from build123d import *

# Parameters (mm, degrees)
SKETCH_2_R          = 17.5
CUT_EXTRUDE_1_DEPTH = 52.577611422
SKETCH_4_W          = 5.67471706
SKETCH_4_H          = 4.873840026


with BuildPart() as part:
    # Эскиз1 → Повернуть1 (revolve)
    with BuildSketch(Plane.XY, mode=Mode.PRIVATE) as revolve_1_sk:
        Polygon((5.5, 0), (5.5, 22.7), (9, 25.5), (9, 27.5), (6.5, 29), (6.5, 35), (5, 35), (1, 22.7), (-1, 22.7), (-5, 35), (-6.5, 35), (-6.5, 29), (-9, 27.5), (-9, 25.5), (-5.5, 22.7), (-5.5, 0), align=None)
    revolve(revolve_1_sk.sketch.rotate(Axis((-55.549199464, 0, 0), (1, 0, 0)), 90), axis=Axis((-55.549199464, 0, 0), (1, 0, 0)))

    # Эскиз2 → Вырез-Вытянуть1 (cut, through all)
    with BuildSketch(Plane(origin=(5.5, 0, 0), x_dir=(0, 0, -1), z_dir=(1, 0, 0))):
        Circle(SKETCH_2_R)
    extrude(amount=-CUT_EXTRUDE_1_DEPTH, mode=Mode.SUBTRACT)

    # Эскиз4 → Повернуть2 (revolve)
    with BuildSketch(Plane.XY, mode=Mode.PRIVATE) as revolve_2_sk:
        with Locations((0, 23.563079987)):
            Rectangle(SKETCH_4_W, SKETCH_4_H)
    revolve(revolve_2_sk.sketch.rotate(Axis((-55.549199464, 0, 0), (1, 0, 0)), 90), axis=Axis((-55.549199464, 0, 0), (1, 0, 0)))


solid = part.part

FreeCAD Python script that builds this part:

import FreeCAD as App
import Part
import Sketcher

V = App.Vector
Q = App.Units.Quantity


def add_polygon(sketch, points):
    """Adds a closed chain of lines whose ends are joined by coincident constraints."""
    first, n = sketch.GeometryCount, len(points)
    for a, b in zip(points, points[1:] + points[:1]):
        sketch.addGeometry(Part.LineSegment(App.Vector(*a, 0), App.Vector(*b, 0)), False)
    for i in range(n):
        sketch.addConstraint(Sketcher.Constraint("Coincident", first + i, 2, first + (i + 1) % n, 1))

doc = App.newDocument("Part")
body = doc.addObject("PartDesign::Body", "Body")

sketch1 = body.newObject("Sketcher::SketchObject", "Sketch")
sketch1.AttachmentSupport = (doc.getObject("XY_Plane"), [""])
sketch1.MapMode = "FlatFace"
add_polygon(sketch1, [(5.5, 0), (5.5, 22.7), (9, 25.5), (9, 27.5), (6.5, 29), (6.5, 35), (5, 35), (1, 22.7), (-1, 22.7), (-5, 35), (-6.5, 35), (-6.5, 29), (-9, 27.5), (-9, 25.5), (-5.5, 22.7), (-5.5, 0)])
sketch1.addConstraint([
    Sketcher.Constraint("Vertical", 0),
    Sketcher.Constraint("Vertical", 2),
    Sketcher.Constraint("Vertical", 4),
    Sketcher.Constraint("Horizontal", 5),
    Sketcher.Constraint("Horizontal", 7),
    Sketcher.Constraint("Horizontal", 9),
    Sketcher.Constraint("Vertical", 10),
    Sketcher.Constraint("Vertical", 12),
    Sketcher.Constraint("Vertical", 14),
    Sketcher.Constraint("Horizontal", 15),
    Sketcher.Constraint("Symmetric", 14, 2, 15, 2, -1, 1),
    Sketcher.Constraint("Symmetric", 5, 2, 8, 2, -2),
    Sketcher.Constraint("Symmetric", 3, 2, 10, 2, -2),
    Sketcher.Constraint("Symmetric", 2, 2, 11, 2, -2),
    Sketcher.Constraint("Horizontal", 0, 2, 6, 2),
    Sketcher.Constraint("Horizontal", 1, 2, 12, 2),
    Sketcher.Constraint("Horizontal", 7, 2, 13, 2),
    Sketcher.Constraint("Equal", 7, 2),
    Sketcher.Constraint("Equal", 6, 8),
    Sketcher.Constraint("DistanceX", 7, 2, 7, 1, Q("2 mm")),
    Sketcher.Constraint("DistanceX", 15, 1, 15, 2, Q("11 mm")),
    Sketcher.Constraint("DistanceY", 4, 1, 4, 2, Q("6 mm")),
    Sketcher.Constraint("DistanceX", 5, 2, 5, 1, Q("1.5 mm")),
    Sketcher.Constraint("DistanceY", 0, 1, 0, 2, Q("22.7 mm")),
    Sketcher.Constraint("DistanceX", -1, 1, 1, 2, Q("9 mm")),
    Sketcher.Constraint("DistanceY", -1, 1, 3, 2, Q("29 mm")),
    Sketcher.Constraint("DistanceX", -1, 1, 5, 2, Q("5 mm")),
    Sketcher.Constraint("DistanceY", -1, 1, 1, 2, Q("25.5 mm")),
])
revolution = body.newObject("PartDesign::Revolution", "Revolution")
revolution.Profile = sketch1
revolution.ReferenceAxis = (sketch1, ["H_Axis"])
revolution.Angle = 360

sketch2 = body.newObject("Sketcher::SketchObject", "Sketch001")
sketch2.AttachmentSupport = (doc.getObject("YZ_Plane"), [""])
sketch2.MapMode = "FlatFace"
sketch2.AttachmentOffset = App.Placement(V(0, 0, 5.5), App.Rotation())
sketch2.addGeometry(Part.Circle(V(0, 0, 0), V(0, 0, 1), 17.5), False)
sketch2.addConstraint([
    Sketcher.Constraint("Coincident", 0, 3, -1, 1),
    Sketcher.Constraint("Diameter", 0, Q("35 mm")),
])
pocket1 = body.newObject("PartDesign::Pocket", "Pocket")
pocket1.Profile = sketch2
pocket1.Type = "ThroughAll"

sketch3 = body.newObject("Sketcher::SketchObject", "Sketch002")
sketch3.AttachmentSupport = (doc.getObject("XY_Plane"), [""])
sketch3.MapMode = "FlatFace"
add_polygon(sketch3, [(-2.837359, 26), (-2.837359, 21.12616), (2.837359, 21.12616), (2.837359, 26)])
sketch3.addConstraint([
    Sketcher.Constraint("Vertical", 0),
    Sketcher.Constraint("Horizontal", 1),
    Sketcher.Constraint("Vertical", 2),
    Sketcher.Constraint("Horizontal", 3),
    Sketcher.Constraint("DistanceY", -1, 1, 2, 2, Q("26 mm")),
    Sketcher.Constraint("DistanceY", 0, 2, 0, 1, Q("4.87384 mm")),
    Sketcher.Constraint("DistanceX", 1, 1, 1, 2, Q("5.674717 mm")),
    Sketcher.Constraint("DistanceX", 0, 2, -1, 1, Q("2.837359 mm")),
])
revolution2 = body.newObject("PartDesign::Revolution", "Revolution001")
revolution2.Profile = sketch3
revolution2.ReferenceAxis = (sketch3, ["H_Axis"])
revolution2.Angle = 360

doc.recompute()
